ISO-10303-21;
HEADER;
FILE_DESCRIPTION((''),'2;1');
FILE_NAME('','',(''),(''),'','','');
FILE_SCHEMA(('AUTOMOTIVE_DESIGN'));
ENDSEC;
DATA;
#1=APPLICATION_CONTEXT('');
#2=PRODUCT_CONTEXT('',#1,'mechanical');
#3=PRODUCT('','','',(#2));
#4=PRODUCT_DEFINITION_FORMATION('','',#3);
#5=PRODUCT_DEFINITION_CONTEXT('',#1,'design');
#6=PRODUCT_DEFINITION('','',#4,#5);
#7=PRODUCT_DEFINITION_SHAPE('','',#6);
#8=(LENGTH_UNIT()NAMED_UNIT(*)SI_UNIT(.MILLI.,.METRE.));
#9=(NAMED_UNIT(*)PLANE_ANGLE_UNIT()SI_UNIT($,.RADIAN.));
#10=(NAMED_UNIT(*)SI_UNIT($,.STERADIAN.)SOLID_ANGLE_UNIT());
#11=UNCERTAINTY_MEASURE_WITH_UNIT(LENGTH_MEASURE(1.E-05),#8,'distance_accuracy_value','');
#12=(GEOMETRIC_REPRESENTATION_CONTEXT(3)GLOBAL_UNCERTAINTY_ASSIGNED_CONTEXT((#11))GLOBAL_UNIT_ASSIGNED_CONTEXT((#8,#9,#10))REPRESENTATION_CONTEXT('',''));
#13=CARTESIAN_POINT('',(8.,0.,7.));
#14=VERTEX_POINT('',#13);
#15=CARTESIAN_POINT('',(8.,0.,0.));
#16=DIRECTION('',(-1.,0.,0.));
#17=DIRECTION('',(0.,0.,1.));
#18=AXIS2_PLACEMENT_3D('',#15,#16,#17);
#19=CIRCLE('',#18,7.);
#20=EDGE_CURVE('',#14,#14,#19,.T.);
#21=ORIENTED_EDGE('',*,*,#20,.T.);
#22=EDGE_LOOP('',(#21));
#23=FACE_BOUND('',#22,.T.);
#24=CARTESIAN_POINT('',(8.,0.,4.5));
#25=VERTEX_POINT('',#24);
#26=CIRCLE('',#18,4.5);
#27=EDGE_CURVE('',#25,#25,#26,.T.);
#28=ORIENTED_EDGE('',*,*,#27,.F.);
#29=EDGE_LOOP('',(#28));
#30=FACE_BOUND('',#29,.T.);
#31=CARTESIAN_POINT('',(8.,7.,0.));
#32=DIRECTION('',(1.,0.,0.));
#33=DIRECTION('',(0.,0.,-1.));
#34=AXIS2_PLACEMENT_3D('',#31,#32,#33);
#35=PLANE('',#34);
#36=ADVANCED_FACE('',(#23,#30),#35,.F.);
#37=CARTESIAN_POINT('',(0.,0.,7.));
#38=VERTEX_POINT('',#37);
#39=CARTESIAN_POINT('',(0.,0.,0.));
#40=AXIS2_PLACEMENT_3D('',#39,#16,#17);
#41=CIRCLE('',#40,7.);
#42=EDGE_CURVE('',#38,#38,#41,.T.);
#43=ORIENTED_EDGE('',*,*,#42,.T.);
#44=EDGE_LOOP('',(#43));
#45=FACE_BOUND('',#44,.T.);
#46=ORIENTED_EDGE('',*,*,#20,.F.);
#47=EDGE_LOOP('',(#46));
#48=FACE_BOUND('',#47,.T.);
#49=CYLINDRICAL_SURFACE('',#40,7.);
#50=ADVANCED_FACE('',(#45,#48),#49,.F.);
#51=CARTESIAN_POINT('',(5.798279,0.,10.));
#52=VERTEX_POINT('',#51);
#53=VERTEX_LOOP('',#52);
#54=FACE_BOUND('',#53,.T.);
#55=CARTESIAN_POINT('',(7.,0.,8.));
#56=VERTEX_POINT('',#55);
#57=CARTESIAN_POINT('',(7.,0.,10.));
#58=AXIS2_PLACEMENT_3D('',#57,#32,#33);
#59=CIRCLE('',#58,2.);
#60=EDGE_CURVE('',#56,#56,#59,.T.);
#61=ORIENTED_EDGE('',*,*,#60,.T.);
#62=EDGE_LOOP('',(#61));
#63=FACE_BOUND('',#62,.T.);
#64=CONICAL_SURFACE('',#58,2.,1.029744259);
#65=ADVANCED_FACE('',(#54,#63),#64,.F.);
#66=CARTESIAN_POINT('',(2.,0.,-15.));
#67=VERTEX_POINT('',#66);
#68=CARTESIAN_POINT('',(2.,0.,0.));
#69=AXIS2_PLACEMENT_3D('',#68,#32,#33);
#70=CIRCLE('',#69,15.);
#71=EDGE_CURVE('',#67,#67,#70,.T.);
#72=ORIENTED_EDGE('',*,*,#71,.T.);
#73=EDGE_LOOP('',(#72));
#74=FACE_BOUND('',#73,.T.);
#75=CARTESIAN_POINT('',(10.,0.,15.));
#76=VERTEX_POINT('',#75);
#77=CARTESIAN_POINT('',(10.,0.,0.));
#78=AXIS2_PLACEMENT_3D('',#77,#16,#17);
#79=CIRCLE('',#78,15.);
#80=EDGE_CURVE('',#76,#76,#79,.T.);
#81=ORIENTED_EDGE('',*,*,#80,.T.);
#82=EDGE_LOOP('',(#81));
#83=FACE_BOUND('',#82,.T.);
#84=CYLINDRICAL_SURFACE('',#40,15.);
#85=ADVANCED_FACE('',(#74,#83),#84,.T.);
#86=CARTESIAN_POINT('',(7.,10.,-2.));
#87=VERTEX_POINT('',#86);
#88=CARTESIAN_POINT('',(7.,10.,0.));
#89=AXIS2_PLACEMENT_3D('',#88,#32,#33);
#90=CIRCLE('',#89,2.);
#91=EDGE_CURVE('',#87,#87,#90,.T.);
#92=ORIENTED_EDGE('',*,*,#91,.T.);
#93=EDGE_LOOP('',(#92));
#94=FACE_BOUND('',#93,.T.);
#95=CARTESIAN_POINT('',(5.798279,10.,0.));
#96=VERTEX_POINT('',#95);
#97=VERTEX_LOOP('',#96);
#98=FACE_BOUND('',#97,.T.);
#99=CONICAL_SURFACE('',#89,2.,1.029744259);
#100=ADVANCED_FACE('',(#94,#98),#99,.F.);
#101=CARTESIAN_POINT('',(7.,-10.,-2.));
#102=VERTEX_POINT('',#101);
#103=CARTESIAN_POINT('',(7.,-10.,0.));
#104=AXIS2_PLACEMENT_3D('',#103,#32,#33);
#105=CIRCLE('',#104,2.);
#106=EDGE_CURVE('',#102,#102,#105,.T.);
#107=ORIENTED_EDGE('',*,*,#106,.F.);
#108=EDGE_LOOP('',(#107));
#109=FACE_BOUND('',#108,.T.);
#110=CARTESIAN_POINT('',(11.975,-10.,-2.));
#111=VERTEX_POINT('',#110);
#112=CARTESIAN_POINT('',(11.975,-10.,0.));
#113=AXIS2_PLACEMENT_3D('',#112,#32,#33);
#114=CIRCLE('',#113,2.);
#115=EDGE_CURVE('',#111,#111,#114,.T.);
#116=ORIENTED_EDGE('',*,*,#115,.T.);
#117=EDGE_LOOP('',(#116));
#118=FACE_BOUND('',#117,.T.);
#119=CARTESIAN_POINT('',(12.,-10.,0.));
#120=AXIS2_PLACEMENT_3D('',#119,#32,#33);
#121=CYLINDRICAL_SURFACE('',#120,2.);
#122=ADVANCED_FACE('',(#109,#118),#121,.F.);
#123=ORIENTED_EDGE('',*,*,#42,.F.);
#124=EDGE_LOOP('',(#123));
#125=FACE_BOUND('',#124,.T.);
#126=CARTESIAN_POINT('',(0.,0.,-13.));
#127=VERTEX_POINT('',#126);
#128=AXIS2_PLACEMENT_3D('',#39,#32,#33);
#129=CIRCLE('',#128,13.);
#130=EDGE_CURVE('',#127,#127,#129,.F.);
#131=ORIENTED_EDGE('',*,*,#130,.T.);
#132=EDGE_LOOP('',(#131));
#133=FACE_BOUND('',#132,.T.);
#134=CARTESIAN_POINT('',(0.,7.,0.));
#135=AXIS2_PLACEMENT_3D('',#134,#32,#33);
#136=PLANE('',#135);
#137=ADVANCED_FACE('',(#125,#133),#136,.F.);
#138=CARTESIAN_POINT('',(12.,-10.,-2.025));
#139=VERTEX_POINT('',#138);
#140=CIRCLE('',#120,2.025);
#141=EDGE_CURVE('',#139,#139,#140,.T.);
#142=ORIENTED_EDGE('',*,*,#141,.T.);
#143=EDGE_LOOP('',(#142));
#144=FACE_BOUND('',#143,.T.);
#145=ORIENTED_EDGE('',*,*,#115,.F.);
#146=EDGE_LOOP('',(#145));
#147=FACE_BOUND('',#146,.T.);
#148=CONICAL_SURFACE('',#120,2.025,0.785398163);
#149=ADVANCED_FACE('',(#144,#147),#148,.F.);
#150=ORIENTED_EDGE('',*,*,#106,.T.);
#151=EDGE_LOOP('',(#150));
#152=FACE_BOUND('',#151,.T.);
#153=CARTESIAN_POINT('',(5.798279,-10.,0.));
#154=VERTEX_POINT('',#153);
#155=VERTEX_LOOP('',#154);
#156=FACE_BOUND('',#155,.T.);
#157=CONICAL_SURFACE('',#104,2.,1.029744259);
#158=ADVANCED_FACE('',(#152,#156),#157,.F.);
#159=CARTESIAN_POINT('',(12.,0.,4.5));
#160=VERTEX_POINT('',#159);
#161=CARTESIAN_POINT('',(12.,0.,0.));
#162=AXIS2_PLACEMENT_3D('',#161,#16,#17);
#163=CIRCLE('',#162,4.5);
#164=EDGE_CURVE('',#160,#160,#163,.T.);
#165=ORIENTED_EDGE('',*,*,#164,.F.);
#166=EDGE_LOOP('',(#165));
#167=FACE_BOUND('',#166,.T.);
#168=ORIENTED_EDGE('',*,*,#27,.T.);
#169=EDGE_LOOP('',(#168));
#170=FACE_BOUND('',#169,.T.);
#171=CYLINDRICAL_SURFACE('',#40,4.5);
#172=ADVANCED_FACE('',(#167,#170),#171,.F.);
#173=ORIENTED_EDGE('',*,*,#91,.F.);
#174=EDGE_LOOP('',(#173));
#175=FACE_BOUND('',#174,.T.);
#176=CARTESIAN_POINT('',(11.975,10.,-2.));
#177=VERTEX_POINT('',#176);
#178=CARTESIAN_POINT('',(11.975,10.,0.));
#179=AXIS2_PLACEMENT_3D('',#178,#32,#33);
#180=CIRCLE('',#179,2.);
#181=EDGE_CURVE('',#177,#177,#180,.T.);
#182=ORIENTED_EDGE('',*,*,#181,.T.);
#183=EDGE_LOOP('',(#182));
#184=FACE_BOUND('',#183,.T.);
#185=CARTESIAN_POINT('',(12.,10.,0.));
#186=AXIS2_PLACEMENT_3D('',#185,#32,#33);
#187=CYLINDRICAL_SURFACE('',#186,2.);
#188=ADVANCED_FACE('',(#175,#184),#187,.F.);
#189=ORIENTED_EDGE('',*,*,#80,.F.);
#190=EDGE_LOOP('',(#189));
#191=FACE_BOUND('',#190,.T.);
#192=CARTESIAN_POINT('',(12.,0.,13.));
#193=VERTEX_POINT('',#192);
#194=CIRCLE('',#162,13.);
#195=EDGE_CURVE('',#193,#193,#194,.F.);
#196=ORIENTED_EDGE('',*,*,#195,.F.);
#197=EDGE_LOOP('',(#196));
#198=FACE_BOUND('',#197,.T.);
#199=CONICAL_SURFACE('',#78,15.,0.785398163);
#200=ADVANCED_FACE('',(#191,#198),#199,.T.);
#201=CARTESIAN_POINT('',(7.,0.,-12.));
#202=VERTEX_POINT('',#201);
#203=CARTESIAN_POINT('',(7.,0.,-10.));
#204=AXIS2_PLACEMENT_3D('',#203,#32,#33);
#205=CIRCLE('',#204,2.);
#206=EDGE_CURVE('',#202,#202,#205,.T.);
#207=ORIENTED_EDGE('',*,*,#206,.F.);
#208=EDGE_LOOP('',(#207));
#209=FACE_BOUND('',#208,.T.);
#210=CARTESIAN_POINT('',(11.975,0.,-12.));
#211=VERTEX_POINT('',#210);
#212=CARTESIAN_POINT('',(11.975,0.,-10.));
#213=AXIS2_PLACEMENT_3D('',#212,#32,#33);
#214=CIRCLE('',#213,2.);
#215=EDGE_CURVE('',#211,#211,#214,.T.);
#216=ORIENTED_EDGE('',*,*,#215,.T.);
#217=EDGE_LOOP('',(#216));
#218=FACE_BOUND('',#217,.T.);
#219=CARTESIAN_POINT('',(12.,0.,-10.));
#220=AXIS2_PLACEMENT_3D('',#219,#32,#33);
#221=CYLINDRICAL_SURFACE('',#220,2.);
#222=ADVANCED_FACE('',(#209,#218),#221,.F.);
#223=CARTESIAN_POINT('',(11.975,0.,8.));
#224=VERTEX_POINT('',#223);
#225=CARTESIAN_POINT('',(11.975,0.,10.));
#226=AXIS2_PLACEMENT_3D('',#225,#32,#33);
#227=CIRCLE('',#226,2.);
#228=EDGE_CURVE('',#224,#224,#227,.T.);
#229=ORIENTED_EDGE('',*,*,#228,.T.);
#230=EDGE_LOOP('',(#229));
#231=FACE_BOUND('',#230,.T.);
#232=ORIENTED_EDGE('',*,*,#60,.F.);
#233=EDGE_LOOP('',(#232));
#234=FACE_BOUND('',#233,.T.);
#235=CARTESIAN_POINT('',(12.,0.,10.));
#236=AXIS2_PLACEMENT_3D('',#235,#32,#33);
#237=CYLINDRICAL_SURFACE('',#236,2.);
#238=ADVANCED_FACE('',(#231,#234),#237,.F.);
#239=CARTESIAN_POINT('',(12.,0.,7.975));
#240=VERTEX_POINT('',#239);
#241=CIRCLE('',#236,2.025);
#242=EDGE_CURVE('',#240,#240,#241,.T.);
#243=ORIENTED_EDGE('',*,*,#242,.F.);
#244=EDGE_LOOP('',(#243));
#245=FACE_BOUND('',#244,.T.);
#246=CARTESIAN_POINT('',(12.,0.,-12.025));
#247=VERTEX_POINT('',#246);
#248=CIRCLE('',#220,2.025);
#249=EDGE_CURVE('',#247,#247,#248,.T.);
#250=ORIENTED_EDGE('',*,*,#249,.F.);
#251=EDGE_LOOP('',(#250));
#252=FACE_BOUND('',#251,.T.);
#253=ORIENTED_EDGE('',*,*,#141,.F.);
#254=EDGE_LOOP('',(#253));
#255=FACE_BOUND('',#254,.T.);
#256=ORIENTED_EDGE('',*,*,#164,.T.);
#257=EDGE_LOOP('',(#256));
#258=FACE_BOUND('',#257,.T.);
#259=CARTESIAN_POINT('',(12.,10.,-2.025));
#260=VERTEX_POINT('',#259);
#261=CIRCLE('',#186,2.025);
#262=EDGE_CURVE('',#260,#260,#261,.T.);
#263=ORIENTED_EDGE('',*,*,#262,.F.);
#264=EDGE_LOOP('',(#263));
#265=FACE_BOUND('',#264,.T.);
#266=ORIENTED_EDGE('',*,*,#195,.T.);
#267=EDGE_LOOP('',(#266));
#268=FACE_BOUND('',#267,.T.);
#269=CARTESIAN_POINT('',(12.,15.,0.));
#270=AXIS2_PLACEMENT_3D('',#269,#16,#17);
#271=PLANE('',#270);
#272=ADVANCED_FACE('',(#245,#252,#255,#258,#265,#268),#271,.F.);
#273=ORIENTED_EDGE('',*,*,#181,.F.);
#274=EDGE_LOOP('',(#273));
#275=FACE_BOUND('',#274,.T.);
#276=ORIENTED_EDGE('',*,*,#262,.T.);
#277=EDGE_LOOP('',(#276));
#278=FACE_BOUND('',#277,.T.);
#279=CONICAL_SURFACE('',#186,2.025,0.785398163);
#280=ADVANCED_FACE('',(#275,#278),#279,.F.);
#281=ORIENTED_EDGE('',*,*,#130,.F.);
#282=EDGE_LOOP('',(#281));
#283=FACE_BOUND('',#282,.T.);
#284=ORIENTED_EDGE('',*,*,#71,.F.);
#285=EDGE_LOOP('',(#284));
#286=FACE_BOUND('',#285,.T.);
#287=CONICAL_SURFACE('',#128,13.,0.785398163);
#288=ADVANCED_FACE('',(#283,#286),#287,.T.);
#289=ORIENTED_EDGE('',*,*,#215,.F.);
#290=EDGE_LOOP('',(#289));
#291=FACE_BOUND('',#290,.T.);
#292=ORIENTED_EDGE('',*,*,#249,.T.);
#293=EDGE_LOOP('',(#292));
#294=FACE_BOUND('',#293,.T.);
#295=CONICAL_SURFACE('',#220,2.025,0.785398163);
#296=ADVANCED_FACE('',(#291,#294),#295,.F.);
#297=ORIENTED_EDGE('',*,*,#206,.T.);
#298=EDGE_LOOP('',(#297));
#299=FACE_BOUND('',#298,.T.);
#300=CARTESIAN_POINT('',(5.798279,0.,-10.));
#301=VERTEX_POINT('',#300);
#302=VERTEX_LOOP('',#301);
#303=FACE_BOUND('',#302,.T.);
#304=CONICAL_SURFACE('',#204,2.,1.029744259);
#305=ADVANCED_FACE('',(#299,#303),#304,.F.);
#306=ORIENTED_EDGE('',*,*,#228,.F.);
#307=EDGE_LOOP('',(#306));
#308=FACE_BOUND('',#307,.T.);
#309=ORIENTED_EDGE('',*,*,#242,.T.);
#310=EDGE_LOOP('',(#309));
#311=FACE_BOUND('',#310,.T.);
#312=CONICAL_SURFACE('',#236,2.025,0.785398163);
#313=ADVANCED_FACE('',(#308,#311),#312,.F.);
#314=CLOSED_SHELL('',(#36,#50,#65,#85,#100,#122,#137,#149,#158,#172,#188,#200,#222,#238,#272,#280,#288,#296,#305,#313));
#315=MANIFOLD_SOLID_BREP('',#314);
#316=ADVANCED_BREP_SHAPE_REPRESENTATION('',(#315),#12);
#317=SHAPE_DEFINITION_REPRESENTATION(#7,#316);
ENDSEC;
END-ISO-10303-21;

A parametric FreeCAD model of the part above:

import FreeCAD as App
import Part
import Sketcher
from FreeCAD import Vector
Q = App.Units.Quantity


def edges_at(feature, points):
    """Names of the edges that pass closest to the given points."""
    edges = feature.Shape.Edges
    near = lambda p: min(range(len(edges)), key=lambda i: edges[i].distToShape(Part.Vertex(*p))[0])
    return sorted({f"Edge{near(p) + 1}" for p in points})


def add_polygon(sketch, points):
    """Adds a closed chain of lines whose ends are joined by coincident constraints."""
    first, n = sketch.GeometryCount, len(points)
    for a, b in zip(points, points[1:] + points[:1]):
        sketch.addGeometry(Part.LineSegment(App.Vector(*a, 0), App.Vector(*b, 0)), False)
    for i in range(n):
        sketch.addConstraint(Sketcher.Constraint("Coincident", first + i, 2, first + (i + 1) % n, 1))

doc = App.newDocument("Part")
body = doc.addObject("PartDesign::Body", "Body")

sketch1 = body.newObject("Sketcher::SketchObject", "Sketch")
sketch1.AttachmentSupport = (doc.getObject("XY_Plane"), [""])
sketch1.MapMode = "FlatFace"
add_polygon(sketch1, [(0, 15), (0, 7), (8, 7), (8, 4.5), (12, 4.5), (12, 15)])
sketch1.addConstraint([
    Sketcher.Constraint("Vertical", 0),
    Sketcher.Constraint("Horizontal", 1),
    Sketcher.Constraint("Vertical", 2),
    Sketcher.Constraint("Horizontal", 3),
    Sketcher.Constraint("Vertical", 4),
    Sketcher.Constraint("Horizontal", 5),
    Sketcher.Constraint("PointOnObject", 0, 2, -2),
    Sketcher.Constraint("Equal", 1, 0),
    Sketcher.Constraint("DistanceX", 1, 1, 1, 2, Q("8 mm")),
    Sketcher.Constraint("DistanceX", 3, 1, 3, 2, Q("4 mm")),
    Sketcher.Constraint("DistanceY", 2, 2, 2, 1, Q("2.5 mm")),
    Sketcher.Constraint("DistanceY", -1, 1, 0, 2, Q("7 mm")),
])
revolution = body.newObject("PartDesign::Revolution", "Revolution")
revolution.Profile = sketch1
revolution.ReferenceAxis = (sketch1, ["H_Axis"])
revolution.Angle = 360

sketch2 = body.newObject("Sketcher::SketchObject", "Sketch001")
sketch2.AttachmentSupport = (doc.getObject("XZ_Plane"), [""])
sketch2.MapMode = "FlatFace"
sketch2.AttachmentOffset = App.Placement(Vector(0, 0, -10), App.Rotation())
add_polygon(sketch2, [(5.798279, 0), (12, 0), (12, -2.025), (11.975, -2), (7, -2)])
sketch2.addConstraint([
    Sketcher.Constraint("Horizontal", 0),
    Sketcher.Constraint("Vertical", 1),
    Sketcher.Constraint("Horizontal", 3),
    Sketcher.Constraint("PointOnObject", 0, 2, -1),
    Sketcher.Constraint("Angle", 2, Q("135 deg")),
    Sketcher.Constraint("Angle", 4, Q("121 deg")),
    Sketcher.Constraint("DistanceX", -1, 1, 0, 2, Q("12 mm")),
    Sketcher.Constraint("DistanceY", 2, 2, -1, 1, Q("2 mm")),
    Sketcher.Constraint("DistanceX", -1, 1, 3, 2, Q("7 mm")),
    Sketcher.Constraint("DistanceX", 3, 2, 3, 1, Q("4.975 mm")),
])
groove = body.newObject("PartDesign::Groove", "Groove")
groove.Profile = sketch2
groove.ReferenceAxis = (sketch2, ["H_Axis"])
groove.Angle = 360
doc.recompute()

polarpattern = body.newObject("PartDesign::PolarPattern", "PolarPattern")
polarpattern.Originals = [groove]
polarpattern.Axis = (doc.getObject("X_Axis"), [""])
polarpattern.Angle = 360
polarpattern.Occurrences = 4
body.Tip = polarpattern
doc.recompute()

chamfer = body.newObject("PartDesign::Chamfer", "Chamfer")
chamfer.Base = (polarpattern, edges_at(polarpattern, [(12, 0, -15), (0, 0, -15)]))
chamfer.Size = 2

doc.recompute()
